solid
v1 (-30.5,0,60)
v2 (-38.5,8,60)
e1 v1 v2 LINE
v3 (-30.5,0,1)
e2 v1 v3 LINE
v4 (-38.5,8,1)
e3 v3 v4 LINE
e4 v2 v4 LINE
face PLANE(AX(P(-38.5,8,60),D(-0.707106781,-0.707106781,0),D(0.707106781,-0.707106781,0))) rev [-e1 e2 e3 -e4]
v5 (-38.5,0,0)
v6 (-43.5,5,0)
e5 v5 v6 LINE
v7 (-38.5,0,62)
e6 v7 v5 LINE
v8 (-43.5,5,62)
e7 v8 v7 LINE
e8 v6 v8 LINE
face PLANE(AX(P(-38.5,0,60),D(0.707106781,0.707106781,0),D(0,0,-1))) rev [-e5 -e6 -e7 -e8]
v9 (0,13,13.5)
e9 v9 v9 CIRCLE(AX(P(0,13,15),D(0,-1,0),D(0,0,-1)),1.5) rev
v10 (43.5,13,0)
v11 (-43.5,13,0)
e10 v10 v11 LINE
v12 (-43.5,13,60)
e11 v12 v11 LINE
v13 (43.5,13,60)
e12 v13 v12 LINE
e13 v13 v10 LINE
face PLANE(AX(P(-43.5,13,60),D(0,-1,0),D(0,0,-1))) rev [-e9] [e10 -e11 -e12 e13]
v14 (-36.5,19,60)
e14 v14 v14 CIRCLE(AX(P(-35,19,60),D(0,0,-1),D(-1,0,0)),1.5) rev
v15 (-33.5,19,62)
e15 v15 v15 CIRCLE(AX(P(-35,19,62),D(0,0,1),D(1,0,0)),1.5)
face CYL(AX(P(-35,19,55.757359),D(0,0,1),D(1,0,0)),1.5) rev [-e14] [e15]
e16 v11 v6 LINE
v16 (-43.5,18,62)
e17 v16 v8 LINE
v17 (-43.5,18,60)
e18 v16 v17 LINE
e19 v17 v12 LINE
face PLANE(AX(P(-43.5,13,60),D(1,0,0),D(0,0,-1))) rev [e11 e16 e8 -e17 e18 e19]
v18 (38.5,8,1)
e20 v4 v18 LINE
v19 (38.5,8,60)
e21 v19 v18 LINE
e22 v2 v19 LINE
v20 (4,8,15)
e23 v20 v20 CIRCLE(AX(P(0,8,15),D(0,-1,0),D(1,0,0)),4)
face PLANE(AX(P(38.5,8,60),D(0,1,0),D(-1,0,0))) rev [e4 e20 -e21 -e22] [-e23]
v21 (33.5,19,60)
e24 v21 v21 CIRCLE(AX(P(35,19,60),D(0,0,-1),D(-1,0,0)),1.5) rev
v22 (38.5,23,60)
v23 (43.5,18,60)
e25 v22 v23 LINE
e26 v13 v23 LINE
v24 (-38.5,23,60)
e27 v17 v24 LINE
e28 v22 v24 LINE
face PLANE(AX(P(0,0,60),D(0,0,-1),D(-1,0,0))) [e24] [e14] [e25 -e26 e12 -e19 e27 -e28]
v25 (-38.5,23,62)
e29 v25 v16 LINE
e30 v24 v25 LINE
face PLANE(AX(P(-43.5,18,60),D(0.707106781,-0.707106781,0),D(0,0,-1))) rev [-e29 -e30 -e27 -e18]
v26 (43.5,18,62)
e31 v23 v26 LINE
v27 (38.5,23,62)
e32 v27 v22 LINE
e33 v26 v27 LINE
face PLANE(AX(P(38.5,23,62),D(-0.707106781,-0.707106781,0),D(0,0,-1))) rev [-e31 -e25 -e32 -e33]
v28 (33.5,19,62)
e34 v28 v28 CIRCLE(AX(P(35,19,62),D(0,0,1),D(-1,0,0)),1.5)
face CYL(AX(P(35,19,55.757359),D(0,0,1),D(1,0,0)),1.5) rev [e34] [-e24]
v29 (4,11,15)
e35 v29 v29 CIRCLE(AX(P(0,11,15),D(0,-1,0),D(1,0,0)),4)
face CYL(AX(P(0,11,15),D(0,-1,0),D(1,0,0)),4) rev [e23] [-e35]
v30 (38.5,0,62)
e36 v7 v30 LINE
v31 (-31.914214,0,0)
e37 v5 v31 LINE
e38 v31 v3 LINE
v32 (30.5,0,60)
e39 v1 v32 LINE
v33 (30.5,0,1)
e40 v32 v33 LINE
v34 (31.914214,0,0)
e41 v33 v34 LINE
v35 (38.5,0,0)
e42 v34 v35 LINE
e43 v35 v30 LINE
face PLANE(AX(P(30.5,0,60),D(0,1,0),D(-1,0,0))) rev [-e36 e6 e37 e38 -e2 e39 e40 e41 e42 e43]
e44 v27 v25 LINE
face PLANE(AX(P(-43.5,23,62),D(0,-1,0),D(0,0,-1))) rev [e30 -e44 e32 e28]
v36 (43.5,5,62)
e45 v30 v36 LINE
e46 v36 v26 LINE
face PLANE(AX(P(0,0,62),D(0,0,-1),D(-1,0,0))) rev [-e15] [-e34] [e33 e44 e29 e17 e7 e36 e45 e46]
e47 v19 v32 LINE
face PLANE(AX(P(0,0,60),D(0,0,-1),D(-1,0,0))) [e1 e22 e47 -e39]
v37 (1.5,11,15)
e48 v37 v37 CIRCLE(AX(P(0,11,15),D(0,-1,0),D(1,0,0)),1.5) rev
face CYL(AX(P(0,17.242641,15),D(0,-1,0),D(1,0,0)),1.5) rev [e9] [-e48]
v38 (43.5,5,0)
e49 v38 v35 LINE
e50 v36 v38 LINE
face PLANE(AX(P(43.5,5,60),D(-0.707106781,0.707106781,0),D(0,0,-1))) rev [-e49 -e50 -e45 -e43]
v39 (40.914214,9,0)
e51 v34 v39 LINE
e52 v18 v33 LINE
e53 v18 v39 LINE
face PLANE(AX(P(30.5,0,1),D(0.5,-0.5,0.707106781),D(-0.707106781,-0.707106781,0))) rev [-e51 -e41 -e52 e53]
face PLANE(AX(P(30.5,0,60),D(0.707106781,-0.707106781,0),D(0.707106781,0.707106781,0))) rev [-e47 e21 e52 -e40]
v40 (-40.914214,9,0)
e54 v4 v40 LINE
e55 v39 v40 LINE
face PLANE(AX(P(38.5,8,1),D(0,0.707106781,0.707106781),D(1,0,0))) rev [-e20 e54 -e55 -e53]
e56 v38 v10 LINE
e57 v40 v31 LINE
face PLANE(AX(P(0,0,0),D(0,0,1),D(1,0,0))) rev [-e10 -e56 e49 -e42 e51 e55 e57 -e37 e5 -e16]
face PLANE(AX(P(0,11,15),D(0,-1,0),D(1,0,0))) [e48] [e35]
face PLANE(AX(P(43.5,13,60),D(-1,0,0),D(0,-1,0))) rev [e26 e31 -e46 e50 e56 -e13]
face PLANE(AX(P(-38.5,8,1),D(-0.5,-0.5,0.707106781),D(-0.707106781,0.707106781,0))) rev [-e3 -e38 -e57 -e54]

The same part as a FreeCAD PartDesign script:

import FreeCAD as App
import Part
import Sketcher

V = App.Vector
Q = App.Units.Quantity


def edges_at(feature, points):
    """Names of the edges that pass closest to the given points."""
    edges = feature.Shape.Edges
    near = lambda p: min(range(len(edges)), key=lambda i: edges[i].distToShape(Part.Vertex(*p))[0])
    return sorted({f"Edge{near(p) + 1}" for p in points})


def add_polygon(sketch, points):
    """Adds a closed chain of lines whose ends are joined by coincident constraints."""
    first, n = sketch.GeometryCount, len(points)
    for a, b in zip(points, points[1:] + points[:1]):
        sketch.addGeometry(Part.LineSegment(App.Vector(*a, 0), App.Vector(*b, 0)), False)
    for i in range(n):
        sketch.addConstraint(Sketcher.Constraint("Coincident", first + i, 2, first + (i + 1) % n, 1))

doc = App.newDocument("Part")
body = doc.addObject("PartDesign::Body", "Body")

sketch1 = body.newObject("Sketcher::SketchObject", "Sketch")
sketch1.AttachmentSupport = (doc.getObject("XY_Plane"), [""])
sketch1.MapMode = "FlatFace"
add_polygon(sketch1, [(38.5, 8), (30.5, 0), (43.5, 0), (43.5, 13), (-43.5, 13), (-43.5, 0), (-30.5, 0), (-38.5, 8)])
sketch1.addConstraint([
    Sketcher.Constraint("Horizontal", 1),
    Sketcher.Constraint("Vertical", 2),
    Sketcher.Constraint("Horizontal", 3),
    Sketcher.Constraint("Vertical", 4),
    Sketcher.Constraint("Horizontal", 5),
    Sketcher.Constraint("Horizontal", 7),
    Sketcher.Constraint("Symmetric", 1, 2, 4, 2, -1, 1),
    Sketcher.Constraint("Symmetric", 0, 2, 5, 2, -2),
    Sketcher.Constraint("Perpendicular", 0, 6),
    Sketcher.Constraint("Equal", 5, 2),
    Sketcher.Constraint("Equal", 0, 6),
    Sketcher.Constraint("DistanceX", 1, 1, 1, 2, Q("13 mm")),
    Sketcher.Constraint("DistanceX", 3, 2, 3, 1, Q("87 mm")),
    Sketcher.Constraint("DistanceX", 7, 1, 7, 2, Q("77 mm")),
])
pad1 = body.newObject("PartDesign::Pad", "Pad")
pad1.Profile = sketch1
pad1.Length = 60

sketch2 = body.newObject("Sketcher::SketchObject", "Sketch001")
sketch2.AttachmentSupport = (doc.getObject("XY_Plane"), [""])
sketch2.MapMode = "FlatFace"
sketch2.AttachmentOffset = App.Placement(V(0, 0, 60), App.Rotation())
add_polygon(sketch2, [(-43.5, 23), (-43.5, 0), (43.5, 0), (43.5, 23)])
sketch2.addConstraint([
    Sketcher.Constraint("Vertical", 0),
    Sketcher.Constraint("Horizontal", 1),
    Sketcher.Constraint("Vertical", 2),
    Sketcher.Constraint("Horizontal", 3),
    Sketcher.Constraint("Symmetric", 0, 2, 1, 2, -1, 1),
    Sketcher.Constraint("DistanceX", 1, 1, 1, 2, Q("87 mm")),
    Sketcher.Constraint("DistanceY", 0, 2, 0, 1, Q("23 mm")),
])
pad2 = body.newObject("PartDesign::Pad", "Pad001")
pad2.Profile = sketch2
pad2.Length = 2

sketch3 = body.newObject("Sketcher::SketchObject", "Sketch002")
sketch3.AttachmentSupport = (doc.getObject("XY_Plane"), [""])
sketch3.MapMode = "FlatFace"
sketch3.AttachmentOffset = App.Placement(V(0, 0, 62), App.Rotation())
sketch3.addGeometry([
    Part.Circle(V(-35, 19, 0), V(0, 0, 1), 1.5),
    Part.Circle(V(35, 19, 0), V(0, 0, 1), 1.5),
], False)
sketch3.addConstraint([
    Sketcher.Constraint("Equal", 0, 1),
    Sketcher.Constraint("Symmetric", 0, 3, 1, 3, -2),
    Sketcher.Constraint("Diameter", 0, Q("3 mm")),
    Sketcher.Constraint("DistanceX", 0, 3, -1, 1, Q("35 mm")),
    Sketcher.Constraint("DistanceY", -1, 1, 0, 3, Q("19 mm")),
])
pocket1 = body.newObject("PartDesign::Pocket", "Pocket")
pocket1.Profile = sketch3
pocket1.Length = 2

sketch4 = body.newObject("Sketcher::SketchObject", "Sketch003")
sketch4.AttachmentSupport = (doc.getObject("XZ_Plane"), [""])
sketch4.MapMode = "FlatFace"
sketch4.AttachmentOffset = App.Placement(V(0, 0, -8), App.Rotation())
sketch4.addGeometry(Part.Circle(V(0, 15, 0), V(0, 0, 1), 1.5), False)
sketch4.addConstraint([
    Sketcher.Constraint("PointOnObject", 0, 3, -2),
    Sketcher.Constraint("Diameter", 0, Q("3 mm")),
    Sketcher.Constraint("DistanceY", -1, 1, 0, 3, Q("15 mm")),
])
pocket2 = body.newObject("PartDesign::Pocket", "Pocket001")
pocket2.Profile = sketch4
pocket2.Length = 5

sketch5 = body.newObject("Sketcher::SketchObject", "Sketch004")
sketch5.AttachmentSupport = (doc.getObject("XZ_Plane"), [""])
sketch5.MapMode = "FlatFace"
sketch5.AttachmentOffset = App.Placement(V(0, 0, -8), App.Rotation())
sketch5.addGeometry(Part.Circle(V(0, 15, 0), V(0, 0, 1), 4), False)
sketch5.addConstraint([
    Sketcher.Constraint("PointOnObject", 0, 3, -2),
    Sketcher.Constraint("Diameter", 0, Q("8 mm")),
    Sketcher.Constraint("DistanceY", -1, 1, 0, 3, Q("15 mm")),
])
pocket3 = body.newObject("PartDesign::Pocket", "Pocket002")
pocket3.Profile = sketch5
pocket3.Length = 3
doc.recompute()

chamfer = body.newObject("PartDesign::Chamfer", "Chamfer")
chamfer.Base = (pocket3, edges_at(pocket3, [(0, 8, 0), (-34.5, 4, 0), (34.5, 4, 0)]))
chamfer.Size = 1
doc.recompute()

chamfer2 = body.newObject("PartDesign::Chamfer", "Chamfer001")
chamfer2.Base = (chamfer, edges_at(chamfer, [
    (43.5, 0, 31),
    (-43.5, 0, 31),
    (-43.5, 23, 61),
    (43.5, 23, 61),
]))
chamfer2.Size = 5

doc.recompute()
